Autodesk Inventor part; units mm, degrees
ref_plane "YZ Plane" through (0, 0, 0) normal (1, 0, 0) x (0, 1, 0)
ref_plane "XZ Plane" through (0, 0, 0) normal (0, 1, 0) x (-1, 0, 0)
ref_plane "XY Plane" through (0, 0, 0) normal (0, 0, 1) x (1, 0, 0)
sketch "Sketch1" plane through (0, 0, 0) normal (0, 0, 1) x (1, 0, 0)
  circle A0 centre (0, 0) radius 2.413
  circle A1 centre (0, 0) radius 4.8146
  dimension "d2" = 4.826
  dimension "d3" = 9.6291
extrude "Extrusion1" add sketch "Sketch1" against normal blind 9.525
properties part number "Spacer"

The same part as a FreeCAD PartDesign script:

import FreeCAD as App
import Part
import Sketcher
from FreeCAD import Vector
Q = App.Units.Quantity

doc = App.newDocument("Part")
body = doc.addObject("PartDesign::Body", "Body")

sketch1 = doc.addObject("Sketcher::SketchObject", "Sketch")
body.addObject(sketch1)
sketch1.AttachmentSupport = (doc.XY_Plane, [""])
sketch1.MapMode = "FlatFace"
sketch1.addGeometry([
    Part.Circle(Vector(0, 0, 0), Vector(0, 0, 1), 4.8),
    Part.Circle(Vector(0, 0, 0), Vector(0, 0, 1), 2.4),
], False)
sketch1.addConstraint([
    Sketcher.Constraint("Coincident", 0, 3, -1, 1),
    Sketcher.Constraint("Coincident", 1, 3, -1, 1),
    Sketcher.Constraint("Diameter", 1, Q("0.19 in")),
    Sketcher.Constraint("Diameter", 0, Q("0.3791 in")),
])
pad1 = doc.addObject("PartDesign::Pad", "Pad")
body.addObject(pad1)
pad1.Profile = sketch1
pad1.Length = Q("0.375 in")
pad1.Reversed = True

doc.recompute()
